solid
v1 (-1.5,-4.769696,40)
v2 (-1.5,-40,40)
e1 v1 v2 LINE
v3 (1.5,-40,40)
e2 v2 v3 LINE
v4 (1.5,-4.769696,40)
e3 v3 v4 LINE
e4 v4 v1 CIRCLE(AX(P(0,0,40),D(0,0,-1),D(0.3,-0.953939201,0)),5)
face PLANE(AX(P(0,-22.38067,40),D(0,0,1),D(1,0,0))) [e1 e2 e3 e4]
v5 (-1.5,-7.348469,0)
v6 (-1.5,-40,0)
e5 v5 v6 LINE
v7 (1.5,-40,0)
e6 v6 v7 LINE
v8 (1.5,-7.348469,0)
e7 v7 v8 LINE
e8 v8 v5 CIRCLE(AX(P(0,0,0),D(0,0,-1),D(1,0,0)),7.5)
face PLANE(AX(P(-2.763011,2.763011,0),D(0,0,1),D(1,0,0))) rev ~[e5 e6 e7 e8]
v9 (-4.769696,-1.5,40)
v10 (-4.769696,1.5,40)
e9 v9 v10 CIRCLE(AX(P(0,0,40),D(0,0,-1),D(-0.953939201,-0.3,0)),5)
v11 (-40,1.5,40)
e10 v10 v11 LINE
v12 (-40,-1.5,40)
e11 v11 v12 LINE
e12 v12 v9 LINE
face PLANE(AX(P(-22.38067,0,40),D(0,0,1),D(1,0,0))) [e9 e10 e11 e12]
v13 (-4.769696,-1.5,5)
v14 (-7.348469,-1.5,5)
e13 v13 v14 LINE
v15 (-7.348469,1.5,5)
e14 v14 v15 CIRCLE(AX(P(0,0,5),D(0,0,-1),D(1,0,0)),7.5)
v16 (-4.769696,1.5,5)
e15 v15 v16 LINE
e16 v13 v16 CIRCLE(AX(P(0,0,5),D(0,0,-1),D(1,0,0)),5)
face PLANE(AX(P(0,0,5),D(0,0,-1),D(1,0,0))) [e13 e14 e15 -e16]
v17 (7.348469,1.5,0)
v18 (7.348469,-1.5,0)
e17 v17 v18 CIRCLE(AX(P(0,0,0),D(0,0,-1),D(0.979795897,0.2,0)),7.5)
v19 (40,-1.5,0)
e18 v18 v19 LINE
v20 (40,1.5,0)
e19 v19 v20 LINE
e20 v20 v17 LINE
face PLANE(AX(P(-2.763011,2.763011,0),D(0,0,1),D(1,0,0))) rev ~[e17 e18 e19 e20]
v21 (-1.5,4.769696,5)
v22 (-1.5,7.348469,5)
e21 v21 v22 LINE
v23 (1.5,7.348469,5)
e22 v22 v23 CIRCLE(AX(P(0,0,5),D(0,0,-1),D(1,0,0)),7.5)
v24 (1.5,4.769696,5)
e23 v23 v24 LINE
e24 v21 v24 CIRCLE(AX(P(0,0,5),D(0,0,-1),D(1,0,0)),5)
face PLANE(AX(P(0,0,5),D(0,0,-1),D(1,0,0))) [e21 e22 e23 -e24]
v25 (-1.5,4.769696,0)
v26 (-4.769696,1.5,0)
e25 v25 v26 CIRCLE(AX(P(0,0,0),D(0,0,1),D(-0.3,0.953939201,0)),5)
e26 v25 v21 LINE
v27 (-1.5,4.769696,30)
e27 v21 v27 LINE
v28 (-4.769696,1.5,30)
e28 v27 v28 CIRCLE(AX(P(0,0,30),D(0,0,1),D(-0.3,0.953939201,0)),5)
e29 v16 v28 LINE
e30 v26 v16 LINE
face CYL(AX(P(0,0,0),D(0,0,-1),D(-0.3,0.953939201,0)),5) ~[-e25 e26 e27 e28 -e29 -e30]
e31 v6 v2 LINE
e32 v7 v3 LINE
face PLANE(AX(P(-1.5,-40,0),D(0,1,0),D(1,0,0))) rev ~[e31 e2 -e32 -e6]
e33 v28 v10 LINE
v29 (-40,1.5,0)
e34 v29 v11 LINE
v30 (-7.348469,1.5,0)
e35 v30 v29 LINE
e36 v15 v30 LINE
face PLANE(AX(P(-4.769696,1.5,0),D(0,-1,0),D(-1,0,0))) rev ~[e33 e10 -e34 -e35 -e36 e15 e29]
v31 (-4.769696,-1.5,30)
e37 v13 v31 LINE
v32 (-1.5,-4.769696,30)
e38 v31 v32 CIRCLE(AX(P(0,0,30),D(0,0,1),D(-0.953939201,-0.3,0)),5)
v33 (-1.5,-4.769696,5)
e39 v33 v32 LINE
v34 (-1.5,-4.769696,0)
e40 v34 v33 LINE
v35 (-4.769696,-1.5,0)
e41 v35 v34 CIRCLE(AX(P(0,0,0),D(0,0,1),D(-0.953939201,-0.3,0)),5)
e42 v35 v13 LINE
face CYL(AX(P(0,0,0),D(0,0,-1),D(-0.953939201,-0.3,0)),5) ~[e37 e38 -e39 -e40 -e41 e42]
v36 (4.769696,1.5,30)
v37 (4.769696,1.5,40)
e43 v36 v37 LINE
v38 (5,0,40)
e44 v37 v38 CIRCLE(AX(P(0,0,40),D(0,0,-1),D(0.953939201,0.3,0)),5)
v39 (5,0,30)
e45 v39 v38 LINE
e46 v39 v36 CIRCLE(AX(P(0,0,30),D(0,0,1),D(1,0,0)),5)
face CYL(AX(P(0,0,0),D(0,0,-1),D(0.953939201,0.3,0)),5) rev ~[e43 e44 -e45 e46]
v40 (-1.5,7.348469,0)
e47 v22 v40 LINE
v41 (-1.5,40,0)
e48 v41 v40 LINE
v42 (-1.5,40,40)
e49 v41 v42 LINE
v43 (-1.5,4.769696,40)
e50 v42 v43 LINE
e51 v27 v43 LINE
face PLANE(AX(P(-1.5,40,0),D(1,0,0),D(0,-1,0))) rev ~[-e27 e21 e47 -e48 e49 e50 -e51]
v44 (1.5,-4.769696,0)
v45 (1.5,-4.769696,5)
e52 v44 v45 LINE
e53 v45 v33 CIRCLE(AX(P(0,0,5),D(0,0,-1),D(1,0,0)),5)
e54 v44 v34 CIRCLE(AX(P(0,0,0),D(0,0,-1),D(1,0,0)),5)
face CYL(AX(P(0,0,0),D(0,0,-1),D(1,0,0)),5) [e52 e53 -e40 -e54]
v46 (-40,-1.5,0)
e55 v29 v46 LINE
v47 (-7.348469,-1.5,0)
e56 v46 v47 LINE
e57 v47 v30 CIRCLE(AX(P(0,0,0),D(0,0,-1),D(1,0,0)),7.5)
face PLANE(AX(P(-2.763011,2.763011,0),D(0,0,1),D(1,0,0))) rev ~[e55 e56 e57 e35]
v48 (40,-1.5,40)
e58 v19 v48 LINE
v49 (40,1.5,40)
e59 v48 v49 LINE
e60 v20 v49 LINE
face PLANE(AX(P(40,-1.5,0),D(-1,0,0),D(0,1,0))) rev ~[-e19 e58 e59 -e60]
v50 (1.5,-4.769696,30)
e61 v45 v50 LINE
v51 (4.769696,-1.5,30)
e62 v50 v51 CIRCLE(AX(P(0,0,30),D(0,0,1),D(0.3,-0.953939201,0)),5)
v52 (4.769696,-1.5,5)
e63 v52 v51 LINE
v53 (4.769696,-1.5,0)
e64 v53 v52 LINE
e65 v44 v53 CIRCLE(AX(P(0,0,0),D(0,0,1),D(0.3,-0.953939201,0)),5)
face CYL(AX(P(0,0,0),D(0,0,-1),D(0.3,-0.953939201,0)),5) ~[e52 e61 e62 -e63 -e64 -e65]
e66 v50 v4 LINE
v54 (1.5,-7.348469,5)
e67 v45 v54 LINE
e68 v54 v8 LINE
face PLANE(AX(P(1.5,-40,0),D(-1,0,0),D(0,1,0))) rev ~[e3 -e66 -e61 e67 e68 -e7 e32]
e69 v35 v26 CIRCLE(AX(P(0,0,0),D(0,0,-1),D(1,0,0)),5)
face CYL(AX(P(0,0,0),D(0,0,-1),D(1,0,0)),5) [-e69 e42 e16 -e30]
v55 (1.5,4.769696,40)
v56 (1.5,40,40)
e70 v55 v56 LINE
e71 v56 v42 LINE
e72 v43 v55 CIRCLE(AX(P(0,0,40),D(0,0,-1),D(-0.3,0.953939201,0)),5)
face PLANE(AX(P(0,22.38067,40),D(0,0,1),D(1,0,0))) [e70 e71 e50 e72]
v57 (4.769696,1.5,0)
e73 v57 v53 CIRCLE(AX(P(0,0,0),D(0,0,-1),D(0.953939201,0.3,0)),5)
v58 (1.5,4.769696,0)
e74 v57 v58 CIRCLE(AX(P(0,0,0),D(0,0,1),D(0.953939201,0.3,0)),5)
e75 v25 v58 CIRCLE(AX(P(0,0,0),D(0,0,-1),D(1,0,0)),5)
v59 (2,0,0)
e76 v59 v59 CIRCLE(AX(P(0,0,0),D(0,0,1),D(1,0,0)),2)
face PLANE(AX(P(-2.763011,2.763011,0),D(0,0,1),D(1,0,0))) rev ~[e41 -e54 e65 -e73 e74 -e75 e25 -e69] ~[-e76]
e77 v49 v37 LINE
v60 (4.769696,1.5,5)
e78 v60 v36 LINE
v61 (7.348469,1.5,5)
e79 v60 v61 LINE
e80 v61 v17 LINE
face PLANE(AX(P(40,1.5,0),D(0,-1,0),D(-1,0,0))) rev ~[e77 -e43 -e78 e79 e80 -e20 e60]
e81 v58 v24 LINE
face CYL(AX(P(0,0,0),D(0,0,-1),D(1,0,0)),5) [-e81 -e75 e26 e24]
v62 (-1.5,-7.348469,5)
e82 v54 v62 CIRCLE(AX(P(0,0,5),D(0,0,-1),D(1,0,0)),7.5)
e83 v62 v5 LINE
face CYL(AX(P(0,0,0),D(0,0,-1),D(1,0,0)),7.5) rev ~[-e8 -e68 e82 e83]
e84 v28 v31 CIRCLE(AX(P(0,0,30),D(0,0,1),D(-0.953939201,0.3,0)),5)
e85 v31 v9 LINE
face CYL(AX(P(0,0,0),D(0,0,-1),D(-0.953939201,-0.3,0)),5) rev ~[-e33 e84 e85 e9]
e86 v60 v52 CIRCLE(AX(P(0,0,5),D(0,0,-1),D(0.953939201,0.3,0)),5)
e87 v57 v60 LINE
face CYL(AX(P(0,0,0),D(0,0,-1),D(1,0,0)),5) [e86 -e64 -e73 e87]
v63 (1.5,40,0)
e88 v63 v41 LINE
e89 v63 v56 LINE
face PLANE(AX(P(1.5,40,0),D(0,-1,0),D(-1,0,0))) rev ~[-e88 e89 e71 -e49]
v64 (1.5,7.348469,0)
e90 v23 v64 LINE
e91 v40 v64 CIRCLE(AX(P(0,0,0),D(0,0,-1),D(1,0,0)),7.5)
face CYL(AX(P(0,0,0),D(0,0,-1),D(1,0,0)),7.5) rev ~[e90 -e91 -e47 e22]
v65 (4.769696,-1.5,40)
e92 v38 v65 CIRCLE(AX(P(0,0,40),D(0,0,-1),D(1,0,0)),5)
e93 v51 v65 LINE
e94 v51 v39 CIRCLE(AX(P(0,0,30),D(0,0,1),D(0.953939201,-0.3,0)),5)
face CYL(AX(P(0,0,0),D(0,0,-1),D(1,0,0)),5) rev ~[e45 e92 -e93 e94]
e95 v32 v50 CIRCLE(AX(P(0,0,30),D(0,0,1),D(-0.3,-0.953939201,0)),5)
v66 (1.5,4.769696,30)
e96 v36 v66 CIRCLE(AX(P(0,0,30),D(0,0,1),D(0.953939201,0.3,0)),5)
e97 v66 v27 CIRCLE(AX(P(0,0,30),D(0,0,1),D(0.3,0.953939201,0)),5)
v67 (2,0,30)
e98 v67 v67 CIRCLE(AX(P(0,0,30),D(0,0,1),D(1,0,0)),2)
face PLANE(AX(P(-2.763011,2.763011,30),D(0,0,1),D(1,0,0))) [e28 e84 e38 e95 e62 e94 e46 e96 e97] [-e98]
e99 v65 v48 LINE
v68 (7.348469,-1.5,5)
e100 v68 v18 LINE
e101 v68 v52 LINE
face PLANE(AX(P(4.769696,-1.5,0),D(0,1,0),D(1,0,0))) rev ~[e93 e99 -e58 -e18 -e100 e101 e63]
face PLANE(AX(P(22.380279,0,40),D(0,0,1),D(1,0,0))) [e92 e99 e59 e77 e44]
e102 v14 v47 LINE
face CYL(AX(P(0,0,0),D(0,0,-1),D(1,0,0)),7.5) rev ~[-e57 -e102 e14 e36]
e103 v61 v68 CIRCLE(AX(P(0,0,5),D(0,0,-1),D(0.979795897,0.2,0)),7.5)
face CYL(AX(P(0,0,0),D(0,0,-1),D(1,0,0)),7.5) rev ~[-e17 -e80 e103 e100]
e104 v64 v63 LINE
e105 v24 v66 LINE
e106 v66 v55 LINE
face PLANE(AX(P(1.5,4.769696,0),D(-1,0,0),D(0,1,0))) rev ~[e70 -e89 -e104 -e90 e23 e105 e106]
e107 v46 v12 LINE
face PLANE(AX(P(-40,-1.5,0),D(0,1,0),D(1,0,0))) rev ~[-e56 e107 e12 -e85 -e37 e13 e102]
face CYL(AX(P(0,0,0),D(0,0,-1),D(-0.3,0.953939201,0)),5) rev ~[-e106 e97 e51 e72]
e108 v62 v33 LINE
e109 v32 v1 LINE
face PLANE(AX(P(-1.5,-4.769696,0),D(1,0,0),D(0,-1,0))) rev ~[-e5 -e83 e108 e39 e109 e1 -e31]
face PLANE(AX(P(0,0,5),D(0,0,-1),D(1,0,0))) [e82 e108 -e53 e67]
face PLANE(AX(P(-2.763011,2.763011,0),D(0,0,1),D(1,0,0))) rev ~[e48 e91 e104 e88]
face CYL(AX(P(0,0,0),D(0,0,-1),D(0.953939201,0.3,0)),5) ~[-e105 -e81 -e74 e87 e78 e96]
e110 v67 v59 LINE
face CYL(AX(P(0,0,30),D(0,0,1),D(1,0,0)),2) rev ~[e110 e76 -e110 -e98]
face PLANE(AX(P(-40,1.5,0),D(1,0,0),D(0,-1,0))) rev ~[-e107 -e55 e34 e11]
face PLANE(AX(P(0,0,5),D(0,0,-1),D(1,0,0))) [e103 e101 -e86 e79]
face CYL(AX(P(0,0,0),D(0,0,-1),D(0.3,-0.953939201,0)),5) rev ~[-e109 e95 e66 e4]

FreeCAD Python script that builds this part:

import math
import FreeCAD as App
import Part
import Sketcher

doc = App.newDocument("Part")
body = doc.addObject("PartDesign::Body", "Body")

# Sketch on XY plane
sketch1 = body.newObject("Sketcher::SketchObject", "Sketch")
sketch1.AttachmentSupport = (doc.getObject("XY_Plane"), [""])
sketch1.MapMode = "FlatFace"
sketch1.addGeometry([
    Part.ArcOfCircle(Part.Circle(App.Vector(0, 0, 0), App.Vector(0, 0, 1), 5), math.radians(163), math.radians(197)),
    Part.LineSegment(App.Vector(-4.8, 1.5, 0), App.Vector(-40, 1.5, 0)),
    Part.LineSegment(App.Vector(-40, 1.5, 0), App.Vector(-40, -1.5, 0)),
    Part.LineSegment(App.Vector(-40, -1.5, 0), App.Vector(-4.8, -1.5, 0)),
], False)
sketch1.addConstraint([
    Sketcher.Constraint("Coincident", 0, 1, 1, 1),
    Sketcher.Constraint("Coincident", 1, 2, 2, 1),
    Sketcher.Constraint("Coincident", 2, 2, 3, 1),
    Sketcher.Constraint("Coincident", 3, 2, 0, 2),
    Sketcher.Constraint("Horizontal", 1),
    Sketcher.Constraint("Vertical", 2),
    Sketcher.Constraint("Horizontal", 3),
    Sketcher.Constraint("Coincident", 0, 3, -1, 1),
    Sketcher.Constraint("Vertical", 0, 1, 3, 2),
    Sketcher.Constraint("Radius", 0, 5.0),
    Sketcher.Constraint("DistanceY", 2, 2, 2, 1, 3.0),
    Sketcher.Constraint("DistanceX", 1, 2, -1, 1, 40.0),
])
pad1 = body.newObject("PartDesign::Pad", "Pad")
pad1.Profile = sketch1
pad1.Length = 40
body2 = doc.addObject("PartDesign::Body", "Body001")

# Sketch on XY plane
sketch2 = body2.newObject("Sketcher::SketchObject", "Sketch001")
sketch2.AttachmentSupport = (doc.getObject("XY_Plane001"), [""])
sketch2.MapMode = "FlatFace"
sketch2.addGeometry([
    Part.ArcOfCircle(Part.Circle(App.Vector(0, 0, 0), App.Vector(0, 0, 1), 5), math.radians(73), math.radians(107)),
    Part.LineSegment(App.Vector(1.5, 4.8, 0), App.Vector(1.5, 40, 0)),
    Part.LineSegment(App.Vector(1.5, 40, 0), App.Vector(-1.5, 40, 0)),
    Part.LineSegment(App.Vector(-1.5, 40, 0), App.Vector(-1.5, 4.8, 0)),
], False)
sketch2.addConstraint([
    Sketcher.Constraint("Coincident", 0, 1, 1, 1),
    Sketcher.Constraint("Coincident", 1, 2, 2, 1),
    Sketcher.Constraint("Coincident", 2, 2, 3, 1),
    Sketcher.Constraint("Coincident", 3, 2, 0, 2),
    Sketcher.Constraint("Vertical", 1),
    Sketcher.Constraint("Horizontal", 2),
    Sketcher.Constraint("Vertical", 3),
    Sketcher.Constraint("Coincident", 0, 3, -1, 1),
    Sketcher.Constraint("Horizontal", 0, 1, 3, 2),
    Sketcher.Constraint("Radius", 0, 5.0),
    Sketcher.Constraint("DistanceX", 2, 2, 2, 1, 3.0),
    Sketcher.Constraint("DistanceY", -1, 1, 1, 2, 40.0),
])
pad2 = body2.newObject("PartDesign::Pad", "Pad001")
pad2.Profile = sketch2
pad2.Length = 40
body3 = doc.addObject("PartDesign::Body", "Body002")

# Sketch on XY plane
sketch3 = body3.newObject("Sketcher::SketchObject", "Sketch002")
sketch3.AttachmentSupport = (doc.getObject("XY_Plane002"), [""])
sketch3.MapMode = "FlatFace"
sketch3.addGeometry([
    Part.ArcOfCircle(Part.Circle(App.Vector(0, 0, 0), App.Vector(0, 0, 1), 5), math.radians(0), math.radians(17.46)),  # 0
    Part.ArcOfCircle(Part.Circle(App.Vector(0, 0, 0), App.Vector(0, 0, 1), 5), math.radians(-17.46), math.radians(0)),  # 1
    Part.LineSegment(App.Vector(4.8, -1.5, 0), App.Vector(40, -1.5, 0)),  # 2
    Part.LineSegment(App.Vector(40, -1.5, 0), App.Vector(40, 1.5, 0)),  # 3
    Part.LineSegment(App.Vector(40, 1.5, 0), App.Vector(4.8, 1.5, 0)),  # 4
], False)
sketch3.addConstraint([
    Sketcher.Constraint("Tangent", 0, 1, 1, 2),
    Sketcher.Constraint("Coincident", 1, 1, 2, 1),
    Sketcher.Constraint("Coincident", 2, 2, 3, 1),
    Sketcher.Constraint("Coincident", 3, 2, 4, 1),
    Sketcher.Constraint("Coincident", 4, 2, 0, 2),
    Sketcher.Constraint("Horizontal", 2),
    Sketcher.Constraint("Vertical", 3),
    Sketcher.Constraint("Horizontal", 4),
    Sketcher.Constraint("Coincident", 0, 3, -1, 1),
    Sketcher.Constraint("Equal", 0, 1),
    Sketcher.Constraint("PointOnObject", 0, 1, -1),
    Sketcher.Constraint("Vertical", 1, 1, 4, 2),
    Sketcher.Constraint("Radius", 0, 5.0),
    Sketcher.Constraint("DistanceY", 3, 1, 3, 2, 3.0),
    Sketcher.Constraint("DistanceX", -1, 1, 2, 2, 40.0),
])
pad3 = body3.newObject("PartDesign::Pad", "Pad002")
pad3.Profile = sketch3
pad3.Length = 40
body4 = doc.addObject("PartDesign::Body", "Body003")

# Sketch on XY plane
sketch4 = body4.newObject("Sketcher::SketchObject", "Sketch003")
sketch4.AttachmentSupport = (doc.getObject("XY_Plane003"), [""])
sketch4.MapMode = "FlatFace"
sketch4.addGeometry([
    Part.LineSegment(App.Vector(1.5, -40, 0), App.Vector(1.5, -4.8, 0)),
    Part.ArcOfCircle(Part.Circle(App.Vector(0, 0, 0), App.Vector(0, 0, 1), 5), math.radians(-107), math.radians(-73)),
    Part.LineSegment(App.Vector(-1.5, -4.8, 0), App.Vector(-1.5, -40, 0)),
    Part.LineSegment(App.Vector(-1.5, -40, 0), App.Vector(1.5, -40, 0)),
], False)
sketch4.addConstraint([
    Sketcher.Constraint("Coincident", 0, 2, 1, 2),
    Sketcher.Constraint("Coincident", 1, 1, 2, 1),
    Sketcher.Constraint("Coincident", 2, 2, 3, 1),
    Sketcher.Constraint("Coincident", 3, 2, 0, 1),
    Sketcher.Constraint("Vertical", 0),
    Sketcher.Constraint("Vertical", 2),
    Sketcher.Constraint("Horizontal", 3),
    Sketcher.Constraint("Coincident", 1, 3, -1, 1),
    Sketcher.Constraint("Horizontal", 0, 2, 1, 1),
    Sketcher.Constraint("Radius", 1, 5.0),
    Sketcher.Constraint("DistanceX", 3, 1, 3, 2, 3.0),
    Sketcher.Constraint("DistanceY", 2, 2, -1, 1, 40.0),
])
pad4 = body4.newObject("PartDesign::Pad", "Pad003")
pad4.Profile = sketch4
pad4.Length = 40
body.AllowCompound = True
doc.recompute()

boolean = body.newObject("PartDesign::Boolean", "Boolean")
boolean.Type = "Fuse"
boolean.addObjects([body2])
doc.recompute()

boolean2 = body.newObject("PartDesign::Boolean", "Boolean001")
boolean2.Type = "Fuse"
boolean2.addObjects([body3])
doc.recompute()

boolean3 = body.newObject("PartDesign::Boolean", "Boolean002")
boolean3.Type = "Fuse"
boolean3.addObjects([body4])

# Sketch on XY plane
sketch5 = body.newObject("Sketcher::SketchObject", "Sketch004")
sketch5.AttachmentSupport = (doc.getObject("XY_Plane"), [""])
sketch5.MapMode = "FlatFace"
sketch5.addGeometry([
    Part.ArcOfCircle(Part.Circle(App.Vector(0, 0, 0), App.Vector(0, 0, 1), 5), math.radians(107), math.radians(163)),  # 0
    Part.ArcOfCircle(Part.Circle(App.Vector(0, 0, 0), App.Vector(0, 0, 1), 5), math.radians(163), math.radians(197)),  # 1
    Part.ArcOfCircle(Part.Circle(App.Vector(0, 0, 0), App.Vector(0, 0, 1), 5), math.radians(-163), math.radians(-107)),  # 2
    Part.ArcOfCircle(Part.Circle(App.Vector(0, 0, 0), App.Vector(0, 0, 1), 5), math.radians(-107), math.radians(-73)),  # 3
    Part.ArcOfCircle(Part.Circle(App.Vector(0, 0, 0), App.Vector(0, 0, 1), 5), math.radians(-73), math.radians(-17)),  # 4
    Part.ArcOfCircle(Part.Circle(App.Vector(0, 0, 0), App.Vector(0, 0, 1), 5), math.radians(-17.46), math.radians(0)),  # 5
    Part.ArcOfCircle(Part.Circle(App.Vector(0, 0, 0), App.Vector(0, 0, 1), 5), math.radians(0), math.radians(17.46)),  # 6
    Part.ArcOfCircle(Part.Circle(App.Vector(0, 0, 0), App.Vector(0, 0, 1), 5), math.radians(17), math.radians(73)),  # 7
    Part.ArcOfCircle(Part.Circle(App.Vector(0, 0, 0), App.Vector(0, 0, 1), 5), math.radians(73), math.radians(107)),  # 8
], False)
sketch5.addConstraint([
    Sketcher.Constraint("Tangent", 0, 2, 1, 1),
    Sketcher.Constraint("Tangent", 1, 2, 2, 1),
    Sketcher.Constraint("Tangent", 2, 2, 3, 1),
    Sketcher.Constraint("Tangent", 3, 2, 4, 1),
    Sketcher.Constraint("Tangent", 4, 2, 5, 1),
    Sketcher.Constraint("Tangent", 5, 2, 6, 1),
    Sketcher.Constraint("Tangent", 6, 2, 7, 1),
    Sketcher.Constraint("Tangent", 7, 2, 8, 1),
    Sketcher.Constraint("Tangent", 8, 2, 0, 1),
    Sketcher.Constraint("Coincident", 0, 3, -1, 1),
    Sketcher.Constraint("Coincident", 2, 3, -1, 1),
    Sketcher.Constraint("Coincident", 4, 3, -1, 1),
    Sketcher.Constraint("Coincident", 6, 3, -1, 1),
    Sketcher.Constraint("PointOnObject", 5, 2, -1),
    Sketcher.Constraint("Horizontal", 2, 2, 3, 2),
    Sketcher.Constraint("Horizontal", 1, 2, 4, 2),
    Sketcher.Constraint("Horizontal", 0, 2, 6, 2),
    Sketcher.Constraint("Horizontal", 7, 2, 8, 2),
    Sketcher.Constraint("Vertical", 0, 2, 1, 2),
    Sketcher.Constraint("Vertical", 3, 2, 7, 2),
    Sketcher.Constraint("Radius", 0, 5.0),
    Sketcher.Constraint("DistanceY", 1, 2, 0, 2, 3.0),
    Sketcher.Constraint("DistanceX", 2, 2, 3, 2, 3.0),
])
pad5 = body.newObject("PartDesign::Pad", "Pad004")
pad5.Profile = sketch5
pad5.Length = 30

# Sketch on XY plane
sketch6 = body.newObject("Sketcher::SketchObject", "Sketch005")
sketch6.AttachmentSupport = (doc.getObject("XY_Plane"), [""])
sketch6.MapMode = "FlatFace"
sketch6.AttachmentOffset = App.Placement(App.Vector(0, 0, 30), App.Rotation())
sketch6.addGeometry(Part.Circle(App.Vector(0, 0, 0), App.Vector(0, 0, 1), 2), False)
sketch6.addConstraint([
    Sketcher.Constraint("Coincident", 0, 3, -1, 1),
    Sketcher.Constraint("Diameter", 0, 4.0),
])
pocket1 = body.newObject("PartDesign::Pocket", "Pocket")
pocket1.Profile = sketch6
pocket1.Length = 30

# Sketch on XY plane
sketch7 = body.newObject("Sketcher::SketchObject", "Sketch006")
sketch7.AttachmentSupport = (doc.getObject("XY_Plane"), [""])
sketch7.MapMode = "FlatFace"
sketch7.addGeometry([
    Part.Circle(App.Vector(0, 0, 0), App.Vector(0, 0, 1), 8),
    Part.Circle(App.Vector(0, 0, 0), App.Vector(0, 0, 1), 5),
], False)
sketch7.addConstraint([
    Sketcher.Constraint("Coincident", 0, 3, -1, 1),
    Sketcher.Constraint("Coincident", 1, 3, -1, 1),
    Sketcher.Constraint("Diameter", 0, 15.0),
    Sketcher.Constraint("Diameter", 1, 10.0),
])
pocket2 = body.newObject("PartDesign::Pocket", "Pocket001")
pocket2.Profile = sketch7
pocket2.Length = 5
pocket2.Reversed = True

doc.recompute()
